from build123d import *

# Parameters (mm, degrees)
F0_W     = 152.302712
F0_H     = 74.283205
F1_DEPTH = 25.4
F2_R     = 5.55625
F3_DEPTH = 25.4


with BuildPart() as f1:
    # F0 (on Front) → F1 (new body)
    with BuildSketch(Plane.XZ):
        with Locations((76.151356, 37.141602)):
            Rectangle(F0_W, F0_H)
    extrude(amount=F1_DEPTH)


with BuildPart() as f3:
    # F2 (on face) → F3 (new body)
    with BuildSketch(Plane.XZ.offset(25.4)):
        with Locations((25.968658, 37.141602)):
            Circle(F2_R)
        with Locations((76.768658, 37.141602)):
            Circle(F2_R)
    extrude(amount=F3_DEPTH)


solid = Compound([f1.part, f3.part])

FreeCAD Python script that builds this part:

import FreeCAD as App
import Part
import Sketcher
from FreeCAD import Vector
Q = App.Units.Quantity

doc = App.newDocument("Part")
body = doc.addObject("PartDesign::Body", "Body")

# Sketch on XZ plane
sketch1 = body.newObject("Sketcher::SketchObject", "Sketch")
sketch1.AttachmentSupport = (doc.getObject("XZ_Plane"), [""])
sketch1.MapMode = "FlatFace"
sketch1.addGeometry(Part.LineSegment(Vector(0, 74, 0), Vector(0, 0, 0)), False)
sketch1.addGeometry(Part.LineSegment(Vector(0, 0, 0), Vector(152, 0, 0)), False)
sketch1.addGeometry(Part.LineSegment(Vector(152, 0, 0), Vector(152, 74, 0)), False)
sketch1.addGeometry(Part.LineSegment(Vector(152, 74, 0), Vector(0, 74, 0)), False)
sketch1.addConstraint(Sketcher.Constraint("Coincident", 0, 2, 1, 1))
sketch1.addConstraint(Sketcher.Constraint("Coincident", 1, 2, 2, 1))
sketch1.addConstraint(Sketcher.Constraint("Coincident", 2, 2, 3, 1))
sketch1.addConstraint(Sketcher.Constraint("Coincident", 3, 2, 0, 1))
sketch1.addConstraint(Sketcher.Constraint("Vertical", 0))
sketch1.addConstraint(Sketcher.Constraint("Horizontal", 1))
sketch1.addConstraint(Sketcher.Constraint("Vertical", 2))
sketch1.addConstraint(Sketcher.Constraint("Horizontal", 3))
sketch1.addConstraint(Sketcher.Constraint("Coincident", 0, 2, -1, 1))
sketch1.addConstraint(Sketcher.Constraint("DistanceX", 1, 1, 1, 2, Q("152.302712 mm")))
sketch1.addConstraint(Sketcher.Constraint("DistanceY", 0, 2, 0, 1, Q("74.283205 mm")))
pad1 = body.newObject("PartDesign::Pad", "Pad")
pad1.Profile = sketch1
pad1.Length = Q("1 in")
body2 = doc.addObject("PartDesign::Body", "Body001")
body2.AllowCompound = True

# Sketch on XZ plane
sketch2 = body2.newObject("Sketcher::SketchObject", "Sketch001")
sketch2.AttachmentSupport = (doc.getObject("XZ_Plane001"), [""])
sketch2.MapMode = "FlatFace"
sketch2.AttachmentOffset = App.Placement(Vector(0, 0, 1 * 25.4), App.Rotation())
sketch2.addGeometry(Part.Circle(Vector(26, 37, 0), Vector(0, 0, 1), 6), False)
sketch2.addGeometry(Part.Circle(Vector(77, 37, 0), Vector(0, 0, 1), 6), False)
sketch2.addConstraint(Sketcher.Constraint("Equal", 0, 1))
sketch2.addConstraint(Sketcher.Constraint("Horizontal", 0, 3, 1, 3))
sketch2.addConstraint(Sketcher.Constraint("Diameter", 0, Q("0.4375 in")))
sketch2.addConstraint(Sketcher.Constraint("DistanceX", 0, 3, 1, 3, Q("2 in")))
sketch2.addConstraint(Sketcher.Constraint("DistanceX", -1, 1, 0, 3, Q("25.968658 mm")))
sketch2.addConstraint(Sketcher.Constraint("DistanceY", -1, 1, 0, 3, Q("37.141602 mm")))
pad2 = body2.newObject("PartDesign::Pad", "Pad001")
pad2.Profile = sketch2
pad2.Length = Q("1 in")

doc.recompute()
